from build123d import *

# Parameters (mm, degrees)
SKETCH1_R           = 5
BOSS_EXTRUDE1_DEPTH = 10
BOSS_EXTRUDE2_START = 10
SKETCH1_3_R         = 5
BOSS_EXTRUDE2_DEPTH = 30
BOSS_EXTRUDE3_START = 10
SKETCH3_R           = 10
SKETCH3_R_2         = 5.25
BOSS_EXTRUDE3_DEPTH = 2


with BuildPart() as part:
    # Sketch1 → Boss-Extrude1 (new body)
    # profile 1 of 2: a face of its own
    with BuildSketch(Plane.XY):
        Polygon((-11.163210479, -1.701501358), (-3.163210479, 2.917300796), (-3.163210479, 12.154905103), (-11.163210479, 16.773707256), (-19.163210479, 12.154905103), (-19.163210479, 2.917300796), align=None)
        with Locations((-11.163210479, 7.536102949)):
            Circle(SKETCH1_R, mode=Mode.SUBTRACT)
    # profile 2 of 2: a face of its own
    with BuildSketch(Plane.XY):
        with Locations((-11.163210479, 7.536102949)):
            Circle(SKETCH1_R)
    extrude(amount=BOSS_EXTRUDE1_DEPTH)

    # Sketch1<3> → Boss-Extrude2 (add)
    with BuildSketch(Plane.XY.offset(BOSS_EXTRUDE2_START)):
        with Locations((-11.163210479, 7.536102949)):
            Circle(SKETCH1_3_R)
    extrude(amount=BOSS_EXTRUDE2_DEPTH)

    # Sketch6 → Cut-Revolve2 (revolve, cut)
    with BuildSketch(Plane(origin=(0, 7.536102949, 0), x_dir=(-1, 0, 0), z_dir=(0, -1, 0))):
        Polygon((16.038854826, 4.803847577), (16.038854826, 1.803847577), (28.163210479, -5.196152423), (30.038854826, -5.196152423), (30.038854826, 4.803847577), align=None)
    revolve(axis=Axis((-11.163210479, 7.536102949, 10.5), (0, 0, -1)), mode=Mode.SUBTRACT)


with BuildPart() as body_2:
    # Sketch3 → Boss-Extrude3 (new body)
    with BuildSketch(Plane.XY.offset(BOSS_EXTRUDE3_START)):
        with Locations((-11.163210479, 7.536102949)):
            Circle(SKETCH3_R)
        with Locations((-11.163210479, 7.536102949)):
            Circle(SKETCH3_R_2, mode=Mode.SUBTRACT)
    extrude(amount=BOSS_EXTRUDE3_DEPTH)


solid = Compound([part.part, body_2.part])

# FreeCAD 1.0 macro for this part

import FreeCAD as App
import Part
import Sketcher

V = App.Vector
Q = App.Units.Quantity

doc = App.newDocument("Part")
body = doc.addObject("PartDesign::Body", "Body")

# Sketch on XY plane
sketch1 = body.newObject("Sketcher::SketchObject", "Sketch")
sketch1.AttachmentSupport = (doc.getObject("XY_Plane"), [""])
sketch1.MapMode = "FlatFace"
sketch1.addGeometry([
    Part.LineSegment(V(-11, -2, 0), V(-3, 3, 0)),  # 0
    Part.LineSegment(V(-3, 3, 0), V(-3, 12, 0)),  # 1
    Part.LineSegment(V(-3, 12, 0), V(-11, 17, 0)),  # 2
    Part.LineSegment(V(-11, 17, 0), V(-19, 12, 0)),  # 3
    Part.LineSegment(V(-19, 12, 0), V(-19, 3, 0)),  # 4
    Part.LineSegment(V(-19, 3, 0), V(-11, -2, 0)),  # 5
], False)
sketch1.addConstraint([
    Sketcher.Constraint("Coincident", 0, 2, 1, 1),
    Sketcher.Constraint("Coincident", 1, 2, 2, 1),
    Sketcher.Constraint("Coincident", 2, 2, 3, 1),
    Sketcher.Constraint("Coincident", 3, 2, 4, 1),
    Sketcher.Constraint("Coincident", 4, 2, 5, 1),
    Sketcher.Constraint("Coincident", 5, 2, 0, 1),
    Sketcher.Constraint("Vertical", 1),
    Sketcher.Constraint("Vertical", 4),
    Sketcher.Constraint("Parallel", 0, 3),
    Sketcher.Constraint("Parallel", 2, 5),
    Sketcher.Constraint("Horizontal", 1, 2, 3, 2),
    Sketcher.Constraint("Horizontal", 0, 2, 4, 2),
    Sketcher.Constraint("Vertical", 2, 2, 5, 2),
    Sketcher.Constraint("Angle", 0, Q("30 deg")),
    Sketcher.Constraint("DistanceX", 2, 2, 1, 2, Q("8 mm")),
    Sketcher.Constraint("DistanceY", -1, 1, 0, 2, Q("2.917301 mm")),
    Sketcher.Constraint("DistanceY", 1, 1, 1, 2, Q("9.237604 mm")),
    Sketcher.Constraint("DistanceX", 0, 2, -1, 1, Q("3.16321 mm")),
])
pad1 = body.newObject("PartDesign::Pad", "Pad")
pad1.Profile = sketch1
pad1.Length = 10

# Sketch on XY plane
sketch2 = body.newObject("Sketcher::SketchObject", "Sketch001")
sketch2.AttachmentSupport = (doc.getObject("XY_Plane"), [""])
sketch2.MapMode = "FlatFace"
sketch2.AttachmentOffset = App.Placement(V(0, 0, 10), App.Rotation())
sketch2.addGeometry(Part.Circle(V(-11, 8, 0), V(0, 0, 1), 5), False)
sketch2.addConstraint([
    Sketcher.Constraint("Diameter", 0, Q("10 mm")),
    Sketcher.Constraint("DistanceX", 0, 3, -1, 1, Q("11.16321 mm")),
    Sketcher.Constraint("DistanceY", -1, 1, 0, 3, Q("7.536103 mm")),
])
pad2 = body.newObject("PartDesign::Pad", "Pad001")
pad2.Profile = sketch2
pad2.Length = 30

# Sketch on XZ plane
sketch3 = body.newObject("Sketcher::SketchObject", "Sketch002")
sketch3.AttachmentSupport = (doc.getObject("XZ_Plane"), [""])
sketch3.MapMode = "FlatFace"
sketch3.AttachmentOffset = App.Placement(V(0, 0, -7.536103), App.Rotation())
sketch3.addGeometry([
    Part.LineSegment(V(-16, -4.8, 0), V(-16, -1.8, 0)),  # 0
    Part.LineSegment(V(-16, -1.8, 0), V(-28.2, 5.2, 0)),  # 1
    Part.LineSegment(V(-28.2, 5.2, 0), V(-30, 5.2, 0)),  # 2
    Part.LineSegment(V(-30, 5.2, 0), V(-30, -4.8, 0)),  # 3
    Part.LineSegment(V(-30, -4.8, 0), V(-16, -4.8, 0)),  # 4
], False)
sketch3.addGeometry(Part.LineSegment(V(-11.2, 5.2, 0), V(-11.2, -4.8, 0)), True)  # axis
sketch3.addConstraint([
    Sketcher.Constraint("Coincident", 0, 2, 1, 1),
    Sketcher.Constraint("Coincident", 1, 2, 2, 1),
    Sketcher.Constraint("Coincident", 2, 2, 3, 1),
    Sketcher.Constraint("Coincident", 3, 2, 4, 1),
    Sketcher.Constraint("Coincident", 4, 2, 0, 1),
    Sketcher.Constraint("Vertical", 0),
    Sketcher.Constraint("Horizontal", 2),
    Sketcher.Constraint("Vertical", 3),
    Sketcher.Constraint("Horizontal", 4),
    Sketcher.Constraint("Vertical", 5),
    Sketcher.Constraint("Horizontal", 2, 2, 5, 1),
    Sketcher.Constraint("Horizontal", 4, 2, 5, 2),
    Sketcher.Constraint("DistanceX", 4, 1, 4, 2, Q("14 mm")),
    Sketcher.Constraint("DistanceY", 0, 1, 0, 2, Q("3 mm")),
    Sketcher.Constraint("DistanceY", 3, 2, 3, 1, Q("10 mm")),
    Sketcher.Constraint("Angle", 1, Q("150 deg")),
    Sketcher.Constraint("DistanceX", 1, 2, 5, 1, Q("17 mm")),
    Sketcher.Constraint("DistanceX", 1, 2, -1, 1, Q("28.16321 mm")),
    Sketcher.Constraint("DistanceY", 0, 2, -1, 1, Q("1.803848 mm")),
])
groove = body.newObject("PartDesign::Groove", "Groove")
groove.Profile = sketch3
groove.ReferenceAxis = (sketch3, ["Axis0"])
groove.Angle = 360
body2 = doc.addObject("PartDesign::Body", "Body001")

# Sketch on XY plane
sketch4 = body2.newObject("Sketcher::SketchObject", "Sketch003")
sketch4.AttachmentSupport = (doc.getObject("XY_Plane001"), [""])
sketch4.MapMode = "FlatFace"
sketch4.AttachmentOffset = App.Placement(V(0, 0, 10), App.Rotation())
sketch4.addGeometry([
    Part.Circle(V(-11, 8, 0), V(0, 0, 1), 10),
    Part.Circle(V(-11, 8, 0), V(0, 0, 1), 5),
], False)
sketch4.addConstraint([
    Sketcher.Constraint("Coincident", 1, 3, 0, 3),
    Sketcher.Constraint("Diameter", 0, Q("20 mm")),
    Sketcher.Constraint("Diameter", 1, Q("10.5 mm")),
    Sketcher.Constraint("DistanceX", 0, 3, -1, 1, Q("11.16321 mm")),
    Sketcher.Constraint("DistanceY", -1, 1, 0, 3, Q("7.536103 mm")),
])
pad3 = body2.newObject("PartDesign::Pad", "Pad002")
pad3.Profile = sketch4
pad3.Length = 2

doc.recompute()
